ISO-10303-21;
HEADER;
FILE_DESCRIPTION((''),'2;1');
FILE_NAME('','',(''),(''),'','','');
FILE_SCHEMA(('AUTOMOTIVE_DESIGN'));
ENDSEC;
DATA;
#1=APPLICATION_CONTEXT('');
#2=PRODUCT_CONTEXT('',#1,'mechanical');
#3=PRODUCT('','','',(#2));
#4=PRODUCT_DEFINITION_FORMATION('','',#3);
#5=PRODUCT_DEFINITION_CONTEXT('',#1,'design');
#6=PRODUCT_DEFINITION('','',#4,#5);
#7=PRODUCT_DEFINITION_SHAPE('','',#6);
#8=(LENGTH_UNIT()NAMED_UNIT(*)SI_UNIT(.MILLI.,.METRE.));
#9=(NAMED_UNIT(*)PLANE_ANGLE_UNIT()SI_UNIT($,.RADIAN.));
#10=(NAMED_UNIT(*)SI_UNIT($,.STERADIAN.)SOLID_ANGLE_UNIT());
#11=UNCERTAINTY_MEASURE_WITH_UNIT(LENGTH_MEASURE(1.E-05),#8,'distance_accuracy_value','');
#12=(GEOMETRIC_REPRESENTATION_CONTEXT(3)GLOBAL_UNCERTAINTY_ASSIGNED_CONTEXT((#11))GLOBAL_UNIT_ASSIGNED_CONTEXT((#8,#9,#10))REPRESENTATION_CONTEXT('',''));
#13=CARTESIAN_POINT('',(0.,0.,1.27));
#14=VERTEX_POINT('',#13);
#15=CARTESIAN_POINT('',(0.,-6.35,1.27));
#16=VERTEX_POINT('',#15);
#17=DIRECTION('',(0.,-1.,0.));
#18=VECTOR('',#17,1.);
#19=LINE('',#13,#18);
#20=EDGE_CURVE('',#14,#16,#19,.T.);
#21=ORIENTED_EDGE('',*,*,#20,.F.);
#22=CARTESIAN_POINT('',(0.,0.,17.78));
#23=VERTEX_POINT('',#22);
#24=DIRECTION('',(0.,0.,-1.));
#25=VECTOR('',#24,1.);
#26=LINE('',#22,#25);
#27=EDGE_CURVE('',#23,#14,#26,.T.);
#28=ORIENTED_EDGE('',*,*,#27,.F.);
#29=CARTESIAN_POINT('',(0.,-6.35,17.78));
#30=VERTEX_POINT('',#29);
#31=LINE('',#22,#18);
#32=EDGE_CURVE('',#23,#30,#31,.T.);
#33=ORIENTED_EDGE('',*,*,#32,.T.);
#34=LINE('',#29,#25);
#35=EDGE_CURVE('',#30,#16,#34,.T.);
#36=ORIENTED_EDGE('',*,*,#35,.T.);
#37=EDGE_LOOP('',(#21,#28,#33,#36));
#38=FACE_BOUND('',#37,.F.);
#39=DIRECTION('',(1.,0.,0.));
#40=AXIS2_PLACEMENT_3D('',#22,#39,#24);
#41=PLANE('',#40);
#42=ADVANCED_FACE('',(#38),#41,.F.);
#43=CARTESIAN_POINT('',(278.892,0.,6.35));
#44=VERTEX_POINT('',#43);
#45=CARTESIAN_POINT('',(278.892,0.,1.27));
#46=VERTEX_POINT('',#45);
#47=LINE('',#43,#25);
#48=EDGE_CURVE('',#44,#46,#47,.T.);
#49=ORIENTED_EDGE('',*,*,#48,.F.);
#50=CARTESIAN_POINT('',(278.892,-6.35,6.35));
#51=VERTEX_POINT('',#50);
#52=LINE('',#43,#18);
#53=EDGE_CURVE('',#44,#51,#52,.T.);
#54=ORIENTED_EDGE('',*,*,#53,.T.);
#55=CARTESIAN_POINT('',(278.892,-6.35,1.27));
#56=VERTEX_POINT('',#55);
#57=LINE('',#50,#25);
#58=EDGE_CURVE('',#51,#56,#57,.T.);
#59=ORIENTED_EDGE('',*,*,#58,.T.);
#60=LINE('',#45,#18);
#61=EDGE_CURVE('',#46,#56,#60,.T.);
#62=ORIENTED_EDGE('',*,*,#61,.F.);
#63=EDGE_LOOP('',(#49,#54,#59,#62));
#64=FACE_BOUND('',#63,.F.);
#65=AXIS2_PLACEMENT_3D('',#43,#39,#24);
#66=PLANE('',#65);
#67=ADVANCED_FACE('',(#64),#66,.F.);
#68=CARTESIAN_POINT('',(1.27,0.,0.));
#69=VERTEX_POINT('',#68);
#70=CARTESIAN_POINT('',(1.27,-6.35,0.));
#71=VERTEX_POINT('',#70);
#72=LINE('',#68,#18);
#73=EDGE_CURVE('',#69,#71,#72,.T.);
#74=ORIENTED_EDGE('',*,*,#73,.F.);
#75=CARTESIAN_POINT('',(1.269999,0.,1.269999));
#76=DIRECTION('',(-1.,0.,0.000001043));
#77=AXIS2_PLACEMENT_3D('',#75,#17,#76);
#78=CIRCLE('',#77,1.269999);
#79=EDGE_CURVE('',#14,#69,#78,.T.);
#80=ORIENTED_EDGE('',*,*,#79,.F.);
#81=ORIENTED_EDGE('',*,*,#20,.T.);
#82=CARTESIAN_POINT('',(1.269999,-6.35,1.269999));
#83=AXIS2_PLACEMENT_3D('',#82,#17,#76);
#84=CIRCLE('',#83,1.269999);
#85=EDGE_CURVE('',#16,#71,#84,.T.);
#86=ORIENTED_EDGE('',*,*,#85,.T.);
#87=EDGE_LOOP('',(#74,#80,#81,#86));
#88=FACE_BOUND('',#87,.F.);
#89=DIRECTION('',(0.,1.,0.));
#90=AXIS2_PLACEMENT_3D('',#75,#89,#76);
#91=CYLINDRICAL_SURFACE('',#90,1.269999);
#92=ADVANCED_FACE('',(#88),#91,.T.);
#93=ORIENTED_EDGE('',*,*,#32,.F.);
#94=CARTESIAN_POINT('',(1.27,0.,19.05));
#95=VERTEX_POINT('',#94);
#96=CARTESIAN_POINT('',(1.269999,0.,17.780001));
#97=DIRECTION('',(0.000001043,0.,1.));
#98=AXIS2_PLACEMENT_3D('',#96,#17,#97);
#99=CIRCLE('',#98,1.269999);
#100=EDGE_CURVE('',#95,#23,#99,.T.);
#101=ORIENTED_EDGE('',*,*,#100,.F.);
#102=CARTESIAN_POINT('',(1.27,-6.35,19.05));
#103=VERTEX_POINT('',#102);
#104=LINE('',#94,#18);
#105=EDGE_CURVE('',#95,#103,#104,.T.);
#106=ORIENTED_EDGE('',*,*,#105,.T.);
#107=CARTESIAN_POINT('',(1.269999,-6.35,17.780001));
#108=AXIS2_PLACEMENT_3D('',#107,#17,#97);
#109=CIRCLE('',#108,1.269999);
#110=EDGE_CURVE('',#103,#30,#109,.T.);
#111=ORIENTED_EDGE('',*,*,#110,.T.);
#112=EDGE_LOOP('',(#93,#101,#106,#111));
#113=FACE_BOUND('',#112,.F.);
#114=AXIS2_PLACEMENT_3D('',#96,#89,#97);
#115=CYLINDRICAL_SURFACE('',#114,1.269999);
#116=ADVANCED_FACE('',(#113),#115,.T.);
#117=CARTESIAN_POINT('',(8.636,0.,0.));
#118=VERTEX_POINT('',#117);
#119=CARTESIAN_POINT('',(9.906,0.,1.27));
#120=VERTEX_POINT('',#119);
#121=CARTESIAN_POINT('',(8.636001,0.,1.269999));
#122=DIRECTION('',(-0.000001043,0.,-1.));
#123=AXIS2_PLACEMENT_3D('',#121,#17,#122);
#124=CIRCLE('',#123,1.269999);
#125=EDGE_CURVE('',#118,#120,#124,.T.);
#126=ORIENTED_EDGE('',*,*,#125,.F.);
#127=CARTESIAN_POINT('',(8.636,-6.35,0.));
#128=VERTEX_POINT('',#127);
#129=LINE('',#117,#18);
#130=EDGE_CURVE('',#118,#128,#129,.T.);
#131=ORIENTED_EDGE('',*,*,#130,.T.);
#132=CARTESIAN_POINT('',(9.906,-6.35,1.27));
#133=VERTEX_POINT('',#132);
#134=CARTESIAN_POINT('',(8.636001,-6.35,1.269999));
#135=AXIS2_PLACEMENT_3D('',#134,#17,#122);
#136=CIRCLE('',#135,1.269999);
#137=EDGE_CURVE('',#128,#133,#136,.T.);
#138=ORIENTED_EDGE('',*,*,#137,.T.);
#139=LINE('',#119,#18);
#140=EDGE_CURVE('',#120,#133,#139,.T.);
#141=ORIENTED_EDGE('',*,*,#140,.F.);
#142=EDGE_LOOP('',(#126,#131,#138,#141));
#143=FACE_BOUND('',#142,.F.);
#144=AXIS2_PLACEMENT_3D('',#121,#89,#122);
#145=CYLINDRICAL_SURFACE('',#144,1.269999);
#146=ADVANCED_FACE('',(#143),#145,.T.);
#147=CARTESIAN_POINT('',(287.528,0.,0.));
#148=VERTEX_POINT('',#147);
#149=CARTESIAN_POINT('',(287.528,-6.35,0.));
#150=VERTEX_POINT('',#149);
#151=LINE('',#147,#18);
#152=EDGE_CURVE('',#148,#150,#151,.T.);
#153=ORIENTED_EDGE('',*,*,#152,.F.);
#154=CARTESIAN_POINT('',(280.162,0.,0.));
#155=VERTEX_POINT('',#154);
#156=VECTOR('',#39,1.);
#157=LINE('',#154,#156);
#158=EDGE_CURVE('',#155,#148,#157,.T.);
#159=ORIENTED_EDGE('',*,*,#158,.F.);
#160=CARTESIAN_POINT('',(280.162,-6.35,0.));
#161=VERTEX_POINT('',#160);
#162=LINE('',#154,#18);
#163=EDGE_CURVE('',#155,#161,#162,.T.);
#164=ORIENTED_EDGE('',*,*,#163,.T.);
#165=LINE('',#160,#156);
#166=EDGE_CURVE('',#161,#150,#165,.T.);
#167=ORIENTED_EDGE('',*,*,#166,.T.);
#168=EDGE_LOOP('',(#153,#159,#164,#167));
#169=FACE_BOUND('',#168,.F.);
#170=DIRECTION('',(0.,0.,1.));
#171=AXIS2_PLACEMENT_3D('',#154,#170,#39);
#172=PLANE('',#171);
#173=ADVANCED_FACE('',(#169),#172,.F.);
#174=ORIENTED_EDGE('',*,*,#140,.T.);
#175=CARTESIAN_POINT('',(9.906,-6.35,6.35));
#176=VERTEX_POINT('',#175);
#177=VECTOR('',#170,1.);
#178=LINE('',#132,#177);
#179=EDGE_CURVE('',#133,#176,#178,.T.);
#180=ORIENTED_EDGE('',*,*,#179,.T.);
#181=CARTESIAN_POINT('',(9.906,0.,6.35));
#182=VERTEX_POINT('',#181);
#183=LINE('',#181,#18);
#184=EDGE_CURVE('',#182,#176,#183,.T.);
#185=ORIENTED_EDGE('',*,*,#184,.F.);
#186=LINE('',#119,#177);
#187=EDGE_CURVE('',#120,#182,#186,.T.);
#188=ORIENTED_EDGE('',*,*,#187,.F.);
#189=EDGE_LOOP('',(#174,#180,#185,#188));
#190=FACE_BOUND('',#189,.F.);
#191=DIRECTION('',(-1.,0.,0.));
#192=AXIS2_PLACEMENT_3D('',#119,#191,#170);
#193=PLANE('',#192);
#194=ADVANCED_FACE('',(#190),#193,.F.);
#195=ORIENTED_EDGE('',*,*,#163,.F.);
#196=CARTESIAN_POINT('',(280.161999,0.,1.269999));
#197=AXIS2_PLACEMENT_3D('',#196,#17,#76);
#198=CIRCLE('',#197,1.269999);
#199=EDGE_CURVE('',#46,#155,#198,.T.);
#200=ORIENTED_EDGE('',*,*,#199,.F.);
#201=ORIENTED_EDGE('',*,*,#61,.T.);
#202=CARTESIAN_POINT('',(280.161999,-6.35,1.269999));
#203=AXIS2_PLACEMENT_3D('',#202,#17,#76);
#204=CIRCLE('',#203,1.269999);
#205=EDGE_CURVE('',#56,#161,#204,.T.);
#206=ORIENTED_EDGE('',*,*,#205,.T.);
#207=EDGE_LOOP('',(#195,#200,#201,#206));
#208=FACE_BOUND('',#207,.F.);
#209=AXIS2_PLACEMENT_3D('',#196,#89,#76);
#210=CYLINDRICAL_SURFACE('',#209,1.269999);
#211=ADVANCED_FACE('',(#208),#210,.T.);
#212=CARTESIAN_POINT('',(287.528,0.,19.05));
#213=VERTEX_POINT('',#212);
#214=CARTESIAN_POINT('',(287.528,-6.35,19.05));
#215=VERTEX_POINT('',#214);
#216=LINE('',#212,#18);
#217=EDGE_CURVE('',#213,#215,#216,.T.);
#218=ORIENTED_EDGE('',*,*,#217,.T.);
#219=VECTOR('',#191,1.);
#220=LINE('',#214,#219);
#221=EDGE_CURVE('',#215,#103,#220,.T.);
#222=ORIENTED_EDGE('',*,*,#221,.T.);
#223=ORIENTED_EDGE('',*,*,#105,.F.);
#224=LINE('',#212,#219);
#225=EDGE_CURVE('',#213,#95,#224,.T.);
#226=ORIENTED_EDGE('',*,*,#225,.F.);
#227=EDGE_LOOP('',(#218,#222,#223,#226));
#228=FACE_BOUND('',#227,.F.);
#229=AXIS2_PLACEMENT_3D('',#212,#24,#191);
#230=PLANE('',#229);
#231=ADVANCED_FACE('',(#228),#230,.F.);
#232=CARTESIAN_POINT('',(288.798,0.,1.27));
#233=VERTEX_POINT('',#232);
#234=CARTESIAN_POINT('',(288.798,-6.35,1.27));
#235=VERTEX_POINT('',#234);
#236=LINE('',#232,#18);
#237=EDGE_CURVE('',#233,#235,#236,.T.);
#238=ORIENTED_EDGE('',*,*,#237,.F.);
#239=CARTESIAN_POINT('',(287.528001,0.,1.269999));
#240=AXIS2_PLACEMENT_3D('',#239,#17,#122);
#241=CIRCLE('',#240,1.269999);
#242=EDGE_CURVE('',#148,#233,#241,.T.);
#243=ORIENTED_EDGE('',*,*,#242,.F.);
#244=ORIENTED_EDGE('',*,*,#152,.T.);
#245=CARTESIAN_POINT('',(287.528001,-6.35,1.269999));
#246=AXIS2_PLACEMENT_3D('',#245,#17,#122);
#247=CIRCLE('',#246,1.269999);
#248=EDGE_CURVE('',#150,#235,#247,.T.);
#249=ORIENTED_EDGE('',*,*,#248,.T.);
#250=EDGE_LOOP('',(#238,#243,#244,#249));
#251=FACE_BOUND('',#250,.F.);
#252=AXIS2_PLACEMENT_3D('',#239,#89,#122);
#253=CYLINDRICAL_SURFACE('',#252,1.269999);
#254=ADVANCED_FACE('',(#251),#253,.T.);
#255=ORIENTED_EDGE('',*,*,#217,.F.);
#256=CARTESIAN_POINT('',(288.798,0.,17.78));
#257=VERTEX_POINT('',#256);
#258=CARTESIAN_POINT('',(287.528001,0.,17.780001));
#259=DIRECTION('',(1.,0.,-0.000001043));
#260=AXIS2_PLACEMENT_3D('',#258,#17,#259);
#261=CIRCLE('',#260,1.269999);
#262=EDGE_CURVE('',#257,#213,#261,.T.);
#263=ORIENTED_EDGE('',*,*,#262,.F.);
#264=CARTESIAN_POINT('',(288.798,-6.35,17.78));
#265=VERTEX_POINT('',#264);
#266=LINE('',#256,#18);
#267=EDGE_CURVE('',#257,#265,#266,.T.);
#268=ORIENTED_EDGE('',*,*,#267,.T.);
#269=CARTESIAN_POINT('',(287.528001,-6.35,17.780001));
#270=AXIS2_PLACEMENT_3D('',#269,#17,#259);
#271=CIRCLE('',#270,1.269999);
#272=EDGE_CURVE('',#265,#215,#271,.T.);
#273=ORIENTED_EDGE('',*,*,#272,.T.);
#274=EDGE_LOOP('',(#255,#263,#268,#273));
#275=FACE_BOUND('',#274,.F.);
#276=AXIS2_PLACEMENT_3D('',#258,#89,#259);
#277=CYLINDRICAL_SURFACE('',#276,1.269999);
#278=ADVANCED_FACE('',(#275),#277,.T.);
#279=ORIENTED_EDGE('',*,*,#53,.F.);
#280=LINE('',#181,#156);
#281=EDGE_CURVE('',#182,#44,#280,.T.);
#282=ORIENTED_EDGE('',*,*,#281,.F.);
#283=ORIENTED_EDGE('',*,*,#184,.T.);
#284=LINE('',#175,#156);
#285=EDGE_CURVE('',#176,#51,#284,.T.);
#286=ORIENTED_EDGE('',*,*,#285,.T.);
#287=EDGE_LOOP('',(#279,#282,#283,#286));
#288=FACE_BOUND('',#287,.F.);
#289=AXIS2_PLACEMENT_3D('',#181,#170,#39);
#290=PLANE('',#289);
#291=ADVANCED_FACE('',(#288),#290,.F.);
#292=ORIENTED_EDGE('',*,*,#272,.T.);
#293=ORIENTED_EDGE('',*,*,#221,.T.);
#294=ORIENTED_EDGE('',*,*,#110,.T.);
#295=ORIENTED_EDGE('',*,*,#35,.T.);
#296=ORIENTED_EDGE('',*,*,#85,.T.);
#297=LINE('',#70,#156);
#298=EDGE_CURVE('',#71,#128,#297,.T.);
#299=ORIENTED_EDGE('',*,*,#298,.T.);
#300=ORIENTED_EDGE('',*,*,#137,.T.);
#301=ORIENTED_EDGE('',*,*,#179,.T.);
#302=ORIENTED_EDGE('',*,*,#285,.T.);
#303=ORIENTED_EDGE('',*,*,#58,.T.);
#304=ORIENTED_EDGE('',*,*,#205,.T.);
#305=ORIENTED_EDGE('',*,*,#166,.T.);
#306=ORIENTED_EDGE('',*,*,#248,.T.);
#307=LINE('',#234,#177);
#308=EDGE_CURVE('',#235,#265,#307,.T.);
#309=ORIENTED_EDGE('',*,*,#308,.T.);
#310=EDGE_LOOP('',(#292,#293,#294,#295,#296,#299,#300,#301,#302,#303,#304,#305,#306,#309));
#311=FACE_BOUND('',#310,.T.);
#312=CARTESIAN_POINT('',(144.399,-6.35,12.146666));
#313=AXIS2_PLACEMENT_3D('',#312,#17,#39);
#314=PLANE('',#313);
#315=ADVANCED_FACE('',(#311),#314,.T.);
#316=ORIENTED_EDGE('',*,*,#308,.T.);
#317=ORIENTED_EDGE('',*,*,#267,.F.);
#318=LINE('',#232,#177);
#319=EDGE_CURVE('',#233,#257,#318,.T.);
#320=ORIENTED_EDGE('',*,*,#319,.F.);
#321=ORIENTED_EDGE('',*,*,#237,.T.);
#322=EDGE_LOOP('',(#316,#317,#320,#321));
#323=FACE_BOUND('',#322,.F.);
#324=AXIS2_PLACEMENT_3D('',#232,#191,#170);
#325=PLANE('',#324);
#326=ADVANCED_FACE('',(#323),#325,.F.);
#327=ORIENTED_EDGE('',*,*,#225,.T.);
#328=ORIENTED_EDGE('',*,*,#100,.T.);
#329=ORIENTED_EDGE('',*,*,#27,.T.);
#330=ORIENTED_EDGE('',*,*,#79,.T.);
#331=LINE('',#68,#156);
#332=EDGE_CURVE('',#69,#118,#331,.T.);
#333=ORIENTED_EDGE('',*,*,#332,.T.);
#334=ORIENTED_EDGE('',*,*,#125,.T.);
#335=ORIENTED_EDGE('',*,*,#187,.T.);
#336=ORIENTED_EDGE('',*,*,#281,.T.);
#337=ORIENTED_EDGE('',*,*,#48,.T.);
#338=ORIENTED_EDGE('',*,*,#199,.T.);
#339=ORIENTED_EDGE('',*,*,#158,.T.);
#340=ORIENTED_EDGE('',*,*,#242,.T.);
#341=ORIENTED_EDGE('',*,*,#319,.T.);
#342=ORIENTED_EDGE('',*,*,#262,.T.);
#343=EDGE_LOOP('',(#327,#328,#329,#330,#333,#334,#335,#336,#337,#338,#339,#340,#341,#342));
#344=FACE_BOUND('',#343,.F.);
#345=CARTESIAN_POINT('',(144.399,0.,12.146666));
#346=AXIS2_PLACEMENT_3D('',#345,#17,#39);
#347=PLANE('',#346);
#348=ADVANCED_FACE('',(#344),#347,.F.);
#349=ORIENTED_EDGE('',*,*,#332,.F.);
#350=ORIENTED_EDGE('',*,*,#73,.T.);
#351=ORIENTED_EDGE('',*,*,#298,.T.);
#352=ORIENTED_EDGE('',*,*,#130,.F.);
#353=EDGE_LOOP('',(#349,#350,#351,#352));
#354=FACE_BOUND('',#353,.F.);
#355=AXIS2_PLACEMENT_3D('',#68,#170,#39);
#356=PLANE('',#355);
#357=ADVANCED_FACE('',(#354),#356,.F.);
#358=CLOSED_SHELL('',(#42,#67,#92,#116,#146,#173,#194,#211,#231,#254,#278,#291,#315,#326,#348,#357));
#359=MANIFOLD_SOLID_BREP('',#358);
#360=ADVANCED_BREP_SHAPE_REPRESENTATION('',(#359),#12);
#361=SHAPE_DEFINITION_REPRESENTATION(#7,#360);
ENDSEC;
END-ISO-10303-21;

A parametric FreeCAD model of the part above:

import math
import FreeCAD as App
import Part
import Sketcher
Q = App.Units.Quantity

doc = App.newDocument("Part")
params = doc.addObject("Spreadsheet::Sheet", "Params")
for row, (alias, value) in enumerate([
    ("sketch1_radius", "0.0499999 in"),
    ("sketch1_height", "0.2 in"),
    ("sketch1_width", "0.29 in"),
    ("sketch1_width2", "10.59 in"),
    ("sketch1_height2", "0.65 in"),
    ("pad1_length", "0.25 in"),
], start=1):
    params.set(f"A{row}", alias)
    params.set(f"B{row}", "=" + value)
    params.setAlias(f"B{row}", alias)

body = doc.addObject("PartDesign::Body", "Body")

# Sketch on XZ plane
sketch1 = body.newObject("Sketcher::SketchObject", "Sketch")
sketch1.AttachmentSupport = (doc.getObject("XZ_Plane"), [""])
sketch1.MapMode = "FlatFace"
sketch1.addGeometry([
    Part.LineSegment(App.Vector(0, 17.8, 0), App.Vector(0, 1.3, 0)),  # 0
    Part.ArcOfCircle(Part.Circle(App.Vector(1.3, 1.3, 0), App.Vector(0, 0, 1), 1.3), math.radians(180), math.radians(270)),  # 1
    Part.LineSegment(App.Vector(1.3, 0, 0), App.Vector(8.6, 0, 0)),  # 2
    Part.ArcOfCircle(Part.Circle(App.Vector(8.6, 1.3, 0), App.Vector(0, 0, 1), 1.3), math.radians(-90), math.radians(0)),  # 3
    Part.LineSegment(App.Vector(9.9, 1.3, 0), App.Vector(9.9, 6.3, 0)),  # 4
    Part.LineSegment(App.Vector(9.9, 6.3, 0), App.Vector(278.9, 6.3, 0)),  # 5
    Part.LineSegment(App.Vector(278.9, 6.3, 0), App.Vector(278.9, 1.3, 0)),  # 6
    Part.ArcOfCircle(Part.Circle(App.Vector(280.2, 1.3, 0), App.Vector(0, 0, 1), 1.3), math.radians(180), math.radians(270)),  # 7
    Part.LineSegment(App.Vector(280.2, 0, 0), App.Vector(287.5, 0, 0)),  # 8
    Part.ArcOfCircle(Part.Circle(App.Vector(287.5, 1.3, 0), App.Vector(0, 0, 1), 1.3), math.radians(-90), math.radians(0)),  # 9
    Part.LineSegment(App.Vector(288.8, 1.3, 0), App.Vector(288.8, 17.8, 0)),  # 10
    Part.ArcOfCircle(Part.Circle(App.Vector(287.5, 17.8, 0), App.Vector(0, 0, 1), 1.3), math.radians(0), math.radians(90)),  # 11
    Part.LineSegment(App.Vector(287.5, 19.1, 0), App.Vector(1.3, 19.1, 0)),  # 12
    Part.ArcOfCircle(Part.Circle(App.Vector(1.3, 17.8, 0), App.Vector(0, 0, 1), 1.3), math.radians(90), math.radians(180)),  # 13
], False)
sketch1.addConstraint([
    Sketcher.Constraint("Tangent", 0, 2, 1, 1),
    Sketcher.Constraint("Tangent", 1, 2, 2, 1),
    Sketcher.Constraint("Tangent", 2, 2, 3, 1),
    Sketcher.Constraint("Tangent", 3, 2, 4, 1),
    Sketcher.Constraint("Coincident", 4, 2, 5, 1),
    Sketcher.Constraint("Coincident", 5, 2, 6, 1),
    Sketcher.Constraint("Tangent", 6, 2, 7, 1),
    Sketcher.Constraint("Tangent", 7, 2, 8, 1),
    Sketcher.Constraint("Tangent", 8, 2, 9, 1),
    Sketcher.Constraint("Tangent", 9, 2, 10, 1),
    Sketcher.Constraint("Tangent", 10, 2, 11, 1),
    Sketcher.Constraint("Tangent", 11, 2, 12, 1),
    Sketcher.Constraint("Tangent", 12, 2, 13, 1),
    Sketcher.Constraint("Tangent", 13, 2, 0, 1),
    Sketcher.Constraint("Vertical", 0),
    Sketcher.Constraint("Horizontal", 2),
    Sketcher.Constraint("Vertical", 4),
    Sketcher.Constraint("Horizontal", 5),
    Sketcher.Constraint("Vertical", 6),
    Sketcher.Constraint("Horizontal", 8),
    Sketcher.Constraint("Vertical", 10),
    Sketcher.Constraint("Horizontal", 12),
    Sketcher.Constraint("Equal", 1, 3),
    Sketcher.Constraint("Equal", 3, 7),
    Sketcher.Constraint("Equal", 7, 9),
    Sketcher.Constraint("Equal", 9, 11),
    Sketcher.Constraint("Equal", 11, 13),
    Sketcher.Constraint("PointOnObject", 0, 2, -2),
    Sketcher.Constraint("PointOnObject", 1, 2, -1),
    Sketcher.Constraint("PointOnObject", 7, 2, -1),
    Sketcher.Constraint("Equal", 2, 8),
    Sketcher.Constraint("Radius", 1, Q("0.0499999 in")),
    Sketcher.Constraint("DistanceY", 4, 1, 4, 2, Q("0.2 in")),
    Sketcher.Constraint("DistanceX", 2, 1, 2, 2, Q("0.29 in")),
    Sketcher.Constraint("DistanceX", 5, 1, 5, 2, Q("10.59 in")),
    Sketcher.Constraint("DistanceY", 0, 2, 0, 1, Q("0.65 in")),
])
sketch1.setExpression("Constraints[31]", "Params.sketch1_radius")
sketch1.setExpression("Constraints[32]", "Params.sketch1_height")
sketch1.setExpression("Constraints[33]", "Params.sketch1_width")
sketch1.setExpression("Constraints[34]", "Params.sketch1_width2")
sketch1.setExpression("Constraints[35]", "Params.sketch1_height2")
pad1 = body.newObject("PartDesign::Pad", "Pad")
pad1.Profile = sketch1
pad1.setExpression("Length", "Params.pad1_length")

doc.recompute()
